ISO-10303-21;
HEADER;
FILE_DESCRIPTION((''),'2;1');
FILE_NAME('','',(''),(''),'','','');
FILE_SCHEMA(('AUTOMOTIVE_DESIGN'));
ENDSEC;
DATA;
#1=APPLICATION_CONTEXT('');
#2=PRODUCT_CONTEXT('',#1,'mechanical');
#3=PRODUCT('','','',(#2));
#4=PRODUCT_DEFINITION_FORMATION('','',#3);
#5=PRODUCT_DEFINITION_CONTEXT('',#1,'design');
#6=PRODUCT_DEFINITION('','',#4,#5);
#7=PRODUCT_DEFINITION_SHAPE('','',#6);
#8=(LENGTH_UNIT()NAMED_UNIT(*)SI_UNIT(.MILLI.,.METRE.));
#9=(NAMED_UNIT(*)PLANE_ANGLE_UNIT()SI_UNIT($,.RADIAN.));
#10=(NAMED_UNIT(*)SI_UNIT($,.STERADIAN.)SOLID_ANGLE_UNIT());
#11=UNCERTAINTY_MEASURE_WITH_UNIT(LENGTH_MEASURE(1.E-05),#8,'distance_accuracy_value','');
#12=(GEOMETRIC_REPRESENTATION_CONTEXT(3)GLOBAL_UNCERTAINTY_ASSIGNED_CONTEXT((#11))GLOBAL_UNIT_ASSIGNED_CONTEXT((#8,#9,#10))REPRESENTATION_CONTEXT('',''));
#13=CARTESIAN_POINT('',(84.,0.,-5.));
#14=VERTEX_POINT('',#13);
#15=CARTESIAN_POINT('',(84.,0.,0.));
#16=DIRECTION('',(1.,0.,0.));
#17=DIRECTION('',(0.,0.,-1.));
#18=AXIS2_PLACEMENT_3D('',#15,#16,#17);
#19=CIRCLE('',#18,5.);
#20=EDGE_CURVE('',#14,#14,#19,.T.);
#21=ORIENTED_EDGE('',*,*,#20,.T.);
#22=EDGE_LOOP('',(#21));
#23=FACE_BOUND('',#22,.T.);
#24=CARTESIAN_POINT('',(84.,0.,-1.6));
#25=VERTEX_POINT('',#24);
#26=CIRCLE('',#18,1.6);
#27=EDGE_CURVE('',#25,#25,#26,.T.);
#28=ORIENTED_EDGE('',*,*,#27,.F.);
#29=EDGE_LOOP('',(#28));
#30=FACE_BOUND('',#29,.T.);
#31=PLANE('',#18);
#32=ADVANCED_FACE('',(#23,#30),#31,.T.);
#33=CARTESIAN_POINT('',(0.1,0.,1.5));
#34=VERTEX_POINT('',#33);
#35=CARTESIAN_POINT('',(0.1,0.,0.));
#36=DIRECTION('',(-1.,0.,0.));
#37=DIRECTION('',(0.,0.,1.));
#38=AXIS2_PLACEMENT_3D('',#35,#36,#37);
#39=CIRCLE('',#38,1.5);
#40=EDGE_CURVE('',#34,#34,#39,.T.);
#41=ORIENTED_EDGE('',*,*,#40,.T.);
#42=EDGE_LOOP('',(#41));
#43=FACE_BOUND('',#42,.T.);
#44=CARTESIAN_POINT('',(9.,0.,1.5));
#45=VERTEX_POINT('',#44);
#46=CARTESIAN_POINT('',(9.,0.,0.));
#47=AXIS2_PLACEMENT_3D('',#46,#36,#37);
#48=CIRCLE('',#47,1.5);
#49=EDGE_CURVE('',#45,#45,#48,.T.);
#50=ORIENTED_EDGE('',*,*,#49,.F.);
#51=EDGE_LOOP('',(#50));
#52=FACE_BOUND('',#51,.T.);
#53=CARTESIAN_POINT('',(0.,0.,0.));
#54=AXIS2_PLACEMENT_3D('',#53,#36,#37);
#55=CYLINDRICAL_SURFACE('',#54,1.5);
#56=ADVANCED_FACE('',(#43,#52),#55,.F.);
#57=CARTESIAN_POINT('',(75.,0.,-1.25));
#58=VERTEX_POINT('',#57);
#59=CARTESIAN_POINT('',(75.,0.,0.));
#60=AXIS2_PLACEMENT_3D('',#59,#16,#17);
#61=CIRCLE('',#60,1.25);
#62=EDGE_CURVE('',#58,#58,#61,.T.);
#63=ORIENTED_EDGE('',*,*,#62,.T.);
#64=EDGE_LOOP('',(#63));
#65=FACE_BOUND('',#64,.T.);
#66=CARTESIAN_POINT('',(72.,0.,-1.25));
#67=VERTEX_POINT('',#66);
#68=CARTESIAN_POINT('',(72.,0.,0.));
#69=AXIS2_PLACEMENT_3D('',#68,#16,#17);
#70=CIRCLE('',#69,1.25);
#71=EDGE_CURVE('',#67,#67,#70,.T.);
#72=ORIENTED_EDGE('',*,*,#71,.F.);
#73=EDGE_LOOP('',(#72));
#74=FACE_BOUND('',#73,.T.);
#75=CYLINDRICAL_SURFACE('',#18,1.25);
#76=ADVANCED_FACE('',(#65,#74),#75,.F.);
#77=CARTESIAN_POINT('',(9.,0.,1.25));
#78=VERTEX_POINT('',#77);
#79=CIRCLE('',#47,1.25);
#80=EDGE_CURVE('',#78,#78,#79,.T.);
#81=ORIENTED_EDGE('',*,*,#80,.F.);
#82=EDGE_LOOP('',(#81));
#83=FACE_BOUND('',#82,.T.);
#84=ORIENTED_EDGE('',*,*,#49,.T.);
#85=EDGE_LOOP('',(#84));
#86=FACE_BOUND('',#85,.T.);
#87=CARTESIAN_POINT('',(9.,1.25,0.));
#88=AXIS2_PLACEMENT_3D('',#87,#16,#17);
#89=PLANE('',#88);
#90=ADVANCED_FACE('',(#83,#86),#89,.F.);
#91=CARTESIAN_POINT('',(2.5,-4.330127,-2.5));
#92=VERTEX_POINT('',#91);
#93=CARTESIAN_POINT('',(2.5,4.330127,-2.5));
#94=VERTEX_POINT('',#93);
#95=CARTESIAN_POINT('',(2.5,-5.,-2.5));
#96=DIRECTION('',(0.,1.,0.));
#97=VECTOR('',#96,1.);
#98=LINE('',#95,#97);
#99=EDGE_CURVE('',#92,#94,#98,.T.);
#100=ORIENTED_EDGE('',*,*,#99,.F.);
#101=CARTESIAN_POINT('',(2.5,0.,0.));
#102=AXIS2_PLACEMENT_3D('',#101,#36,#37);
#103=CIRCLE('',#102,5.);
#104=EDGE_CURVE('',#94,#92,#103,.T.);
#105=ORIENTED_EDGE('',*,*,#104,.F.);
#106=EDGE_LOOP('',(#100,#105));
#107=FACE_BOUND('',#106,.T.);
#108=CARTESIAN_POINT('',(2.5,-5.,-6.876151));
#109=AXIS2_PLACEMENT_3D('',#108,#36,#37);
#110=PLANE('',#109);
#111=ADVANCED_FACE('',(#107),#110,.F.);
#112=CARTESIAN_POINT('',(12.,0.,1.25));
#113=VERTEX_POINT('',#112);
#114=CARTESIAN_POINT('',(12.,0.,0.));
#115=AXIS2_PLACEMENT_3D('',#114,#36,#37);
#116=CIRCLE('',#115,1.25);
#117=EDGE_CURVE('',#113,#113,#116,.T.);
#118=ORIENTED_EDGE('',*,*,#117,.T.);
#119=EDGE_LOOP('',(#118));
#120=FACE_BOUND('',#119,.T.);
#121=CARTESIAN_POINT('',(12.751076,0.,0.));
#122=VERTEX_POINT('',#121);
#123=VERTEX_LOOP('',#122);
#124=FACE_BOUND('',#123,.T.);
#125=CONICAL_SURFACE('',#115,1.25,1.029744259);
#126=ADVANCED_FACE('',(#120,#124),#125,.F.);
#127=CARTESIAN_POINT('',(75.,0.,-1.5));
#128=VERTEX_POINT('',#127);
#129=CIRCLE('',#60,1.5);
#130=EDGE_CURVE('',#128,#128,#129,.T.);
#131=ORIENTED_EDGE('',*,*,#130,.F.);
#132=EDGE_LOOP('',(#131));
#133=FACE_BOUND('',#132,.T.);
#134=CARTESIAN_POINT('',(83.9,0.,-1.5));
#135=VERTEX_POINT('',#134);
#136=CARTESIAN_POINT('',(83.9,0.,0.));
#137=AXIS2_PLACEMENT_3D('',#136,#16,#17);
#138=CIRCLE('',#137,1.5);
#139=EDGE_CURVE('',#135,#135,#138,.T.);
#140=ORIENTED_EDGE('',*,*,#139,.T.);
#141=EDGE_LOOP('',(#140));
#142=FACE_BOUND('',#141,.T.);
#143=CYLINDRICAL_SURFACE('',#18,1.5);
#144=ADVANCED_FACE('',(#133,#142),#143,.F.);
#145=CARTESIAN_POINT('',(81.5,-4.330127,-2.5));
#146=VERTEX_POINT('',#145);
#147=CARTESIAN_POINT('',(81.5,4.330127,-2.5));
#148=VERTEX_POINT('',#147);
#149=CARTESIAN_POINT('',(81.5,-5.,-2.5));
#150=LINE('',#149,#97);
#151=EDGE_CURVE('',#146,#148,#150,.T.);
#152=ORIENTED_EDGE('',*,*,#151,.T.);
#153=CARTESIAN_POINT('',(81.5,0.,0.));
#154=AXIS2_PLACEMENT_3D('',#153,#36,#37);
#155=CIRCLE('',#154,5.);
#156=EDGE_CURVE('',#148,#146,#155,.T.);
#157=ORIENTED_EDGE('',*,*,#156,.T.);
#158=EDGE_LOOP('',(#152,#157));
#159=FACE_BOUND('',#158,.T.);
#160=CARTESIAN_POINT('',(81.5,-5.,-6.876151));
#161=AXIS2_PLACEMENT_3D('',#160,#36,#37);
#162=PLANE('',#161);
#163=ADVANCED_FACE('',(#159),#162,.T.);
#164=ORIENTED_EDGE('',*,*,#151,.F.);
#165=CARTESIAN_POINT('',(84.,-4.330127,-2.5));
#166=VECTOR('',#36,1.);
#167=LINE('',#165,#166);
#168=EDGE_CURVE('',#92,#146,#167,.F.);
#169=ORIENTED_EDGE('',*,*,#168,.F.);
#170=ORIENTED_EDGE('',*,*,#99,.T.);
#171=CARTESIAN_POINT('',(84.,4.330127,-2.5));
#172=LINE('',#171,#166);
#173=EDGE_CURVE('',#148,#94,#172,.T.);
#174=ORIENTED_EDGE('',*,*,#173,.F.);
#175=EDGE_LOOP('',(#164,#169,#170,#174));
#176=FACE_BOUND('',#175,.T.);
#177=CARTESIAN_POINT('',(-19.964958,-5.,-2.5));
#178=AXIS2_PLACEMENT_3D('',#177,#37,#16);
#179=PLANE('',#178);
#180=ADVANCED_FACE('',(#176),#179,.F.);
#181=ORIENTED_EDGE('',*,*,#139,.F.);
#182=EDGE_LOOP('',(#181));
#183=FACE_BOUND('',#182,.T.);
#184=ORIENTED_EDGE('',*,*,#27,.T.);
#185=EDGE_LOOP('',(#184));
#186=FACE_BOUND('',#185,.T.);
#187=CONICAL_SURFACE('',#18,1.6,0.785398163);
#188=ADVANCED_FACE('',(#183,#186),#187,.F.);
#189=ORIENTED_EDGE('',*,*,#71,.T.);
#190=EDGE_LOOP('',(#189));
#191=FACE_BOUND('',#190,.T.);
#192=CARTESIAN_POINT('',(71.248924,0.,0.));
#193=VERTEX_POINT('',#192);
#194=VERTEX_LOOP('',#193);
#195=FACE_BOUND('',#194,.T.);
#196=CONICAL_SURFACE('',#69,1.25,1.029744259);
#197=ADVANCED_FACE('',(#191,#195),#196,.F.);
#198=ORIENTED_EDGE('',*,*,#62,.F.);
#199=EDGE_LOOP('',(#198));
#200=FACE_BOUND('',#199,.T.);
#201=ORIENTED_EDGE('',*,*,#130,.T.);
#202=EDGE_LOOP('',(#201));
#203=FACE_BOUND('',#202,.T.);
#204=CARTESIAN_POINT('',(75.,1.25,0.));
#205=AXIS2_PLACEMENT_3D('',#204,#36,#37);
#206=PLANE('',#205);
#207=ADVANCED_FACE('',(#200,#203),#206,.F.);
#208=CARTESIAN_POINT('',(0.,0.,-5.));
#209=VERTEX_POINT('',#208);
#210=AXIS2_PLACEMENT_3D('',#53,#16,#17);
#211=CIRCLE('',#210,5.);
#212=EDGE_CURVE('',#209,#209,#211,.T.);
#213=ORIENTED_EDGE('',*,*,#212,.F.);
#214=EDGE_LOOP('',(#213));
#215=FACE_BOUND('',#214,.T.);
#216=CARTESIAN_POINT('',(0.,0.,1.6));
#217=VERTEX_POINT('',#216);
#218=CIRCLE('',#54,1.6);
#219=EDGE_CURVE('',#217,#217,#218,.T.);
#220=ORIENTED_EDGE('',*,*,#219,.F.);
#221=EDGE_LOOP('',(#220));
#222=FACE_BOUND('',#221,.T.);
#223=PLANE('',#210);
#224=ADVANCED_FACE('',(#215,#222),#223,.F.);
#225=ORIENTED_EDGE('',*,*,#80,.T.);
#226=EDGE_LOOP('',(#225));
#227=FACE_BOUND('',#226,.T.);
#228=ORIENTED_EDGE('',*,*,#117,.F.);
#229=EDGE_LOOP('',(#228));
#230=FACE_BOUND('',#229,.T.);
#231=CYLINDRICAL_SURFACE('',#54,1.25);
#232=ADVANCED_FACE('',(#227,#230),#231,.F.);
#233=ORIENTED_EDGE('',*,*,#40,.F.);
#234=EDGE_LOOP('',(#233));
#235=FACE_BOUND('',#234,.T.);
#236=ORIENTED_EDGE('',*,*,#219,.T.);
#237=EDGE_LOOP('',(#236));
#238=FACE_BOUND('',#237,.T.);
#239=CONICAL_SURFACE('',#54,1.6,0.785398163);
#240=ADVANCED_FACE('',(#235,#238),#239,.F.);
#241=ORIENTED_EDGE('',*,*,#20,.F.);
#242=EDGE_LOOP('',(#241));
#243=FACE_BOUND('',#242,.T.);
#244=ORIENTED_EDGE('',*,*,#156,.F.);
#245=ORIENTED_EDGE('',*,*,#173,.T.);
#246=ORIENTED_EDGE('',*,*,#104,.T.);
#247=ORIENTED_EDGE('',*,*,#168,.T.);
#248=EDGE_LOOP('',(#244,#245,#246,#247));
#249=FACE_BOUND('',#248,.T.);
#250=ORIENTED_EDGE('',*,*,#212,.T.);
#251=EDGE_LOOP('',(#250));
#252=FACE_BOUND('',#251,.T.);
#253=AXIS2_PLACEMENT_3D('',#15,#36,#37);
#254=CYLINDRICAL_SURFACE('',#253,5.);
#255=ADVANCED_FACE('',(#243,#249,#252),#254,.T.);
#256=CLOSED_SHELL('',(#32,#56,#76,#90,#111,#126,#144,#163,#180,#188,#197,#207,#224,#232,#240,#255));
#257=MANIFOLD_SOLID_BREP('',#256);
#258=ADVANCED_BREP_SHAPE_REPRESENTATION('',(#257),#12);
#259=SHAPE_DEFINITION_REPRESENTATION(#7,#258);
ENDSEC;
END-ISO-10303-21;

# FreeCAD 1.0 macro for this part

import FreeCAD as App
import Part
import Sketcher

V = App.Vector
Q = App.Units.Quantity


def add_polygon(sketch, points):
    """Adds a closed chain of lines whose ends are joined by coincident constraints."""
    first, n = sketch.GeometryCount, len(points)
    for a, b in zip(points, points[1:] + points[:1]):
        sketch.addGeometry(Part.LineSegment(App.Vector(*a, 0), App.Vector(*b, 0)), False)
    for i in range(n):
        sketch.addConstraint(Sketcher.Constraint("Coincident", first + i, 2, first + (i + 1) % n, 1))

doc = App.newDocument("Part")
body = doc.addObject("PartDesign::Body", "Body")

# Sketch on YZ plane
sketch1 = body.newObject("Sketcher::SketchObject", "Sketch")
sketch1.AttachmentSupport = (doc.getObject("YZ_Plane"), [""])
sketch1.MapMode = "FlatFace"
sketch1.addGeometry(Part.Circle(V(0, 0, 0), V(0, 0, 1), 5), False)
sketch1.addConstraint([
    Sketcher.Constraint("Coincident", 0, 3, -1, 1),
    Sketcher.Constraint("Diameter", 0, 10.0),
])
pad1 = body.newObject("PartDesign::Pad", "Pad")
pad1.Profile = sketch1
pad1.Length = 84

# Sketch on XZ plane
sketch2 = body.newObject("Sketcher::SketchObject", "Sketch001")
sketch2.AttachmentSupport = (doc.getObject("XZ_Plane"), [""])
sketch2.MapMode = "FlatFace"
add_polygon(sketch2, [(12.751076, 0), (0, 0), (0, 1.6), (0.1, 1.5), (9, 1.5), (9, 1.25), (12, 1.25)])  # lines 0-6
sketch2.addConstraint([
    Sketcher.Constraint("Horizontal", 0),
    Sketcher.Constraint("Vertical", 1),
    Sketcher.Constraint("Horizontal", 3),
    Sketcher.Constraint("Vertical", 4),
    Sketcher.Constraint("Horizontal", 5),
    Sketcher.Constraint("Coincident", 0, 2, -1, 1),
    Sketcher.Constraint("DistanceX", 5, 1, 5, 2, 3.0),
    Sketcher.Constraint("Angle", 2, Q("-45 deg")),
    Sketcher.Constraint("Angle", 6, Q("-59 deg")),
    Sketcher.Constraint("DistanceX", 3, 1, 3, 2, 8.9),
    Sketcher.Constraint("DistanceY", 1, 1, 1, 2, 1.6),
    Sketcher.Constraint("DistanceX", -1, 1, 3, 2, 9.0),
    Sketcher.Constraint("DistanceY", 4, 2, 4, 1, 0.25),
])
groove = body.newObject("PartDesign::Groove", "Groove")
groove.Profile = sketch2
groove.ReferenceAxis = (sketch2, ["H_Axis"])
groove.Angle = 360

# Sketch on XZ plane
sketch3 = body.newObject("Sketcher::SketchObject", "Sketch002")
sketch3.AttachmentSupport = (doc.getObject("XZ_Plane"), [""])
sketch3.MapMode = "FlatFace"
add_polygon(sketch3, [(71.248924, 0), (84, 0), (84, -1.6), (83.9, -1.5), (75, -1.5), (75, -1.25), (72, -1.25)])  # lines 0-6
sketch3.addConstraint([
    Sketcher.Constraint("Horizontal", 0),
    Sketcher.Constraint("Vertical", 1),
    Sketcher.Constraint("Horizontal", 3),
    Sketcher.Constraint("Vertical", 4),
    Sketcher.Constraint("Horizontal", 5),
    Sketcher.Constraint("PointOnObject", 0, 2, -1),
    Sketcher.Constraint("DistanceX", 5, 2, 5, 1, 3.0),
    Sketcher.Constraint("Angle", 2, Q("135 deg")),
    Sketcher.Constraint("Angle", 6, Q("121 deg")),
    Sketcher.Constraint("DistanceX", 3, 2, 3, 1, 8.9),
    Sketcher.Constraint("DistanceY", 1, 2, 1, 1, 1.6),
    Sketcher.Constraint("DistanceX", -1, 1, 0, 2, 84.0),
    Sketcher.Constraint("DistanceX", -1, 1, 3, 2, 75.0),
    Sketcher.Constraint("DistanceY", 4, 1, 4, 2, 0.25),
])
groove2 = body.newObject("PartDesign::Groove", "Groove001")
groove2.Profile = sketch3
groove2.ReferenceAxis = (sketch3, ["H_Axis"])
groove2.Angle = 360

# Sketch on XZ plane
sketch4 = body.newObject("Sketcher::SketchObject", "Sketch003")
sketch4.AttachmentSupport = (doc.getObject("XZ_Plane"), [""])
sketch4.MapMode = "FlatFace"
add_polygon(sketch4, [(2.5, -11.252302), (2.5, -2.5), (81.5, -2.5), (81.5, -11.252302)])  # lines 0-3
sketch4.addConstraint([
    Sketcher.Constraint("Vertical", 0),
    Sketcher.Constraint("Horizontal", 1),
    Sketcher.Constraint("Vertical", 2),
    Sketcher.Constraint("Horizontal", 3),
    Sketcher.Constraint("DistanceX", 1, 1, 1, 2, 79.0),
    Sketcher.Constraint("DistanceX", -1, 1, 0, 2, 2.5),
    Sketcher.Constraint("DistanceY", 0, 2, -1, 1, 2.5),
    Sketcher.Constraint("DistanceY", 0, 1, 0, 2, 8.752302),
])
pocket1 = body.newObject("PartDesign::Pocket", "Pocket")
pocket1.Profile = sketch4
pocket1.Type = "ThroughAll"
pocket1.Midplane = True

doc.recompute()
